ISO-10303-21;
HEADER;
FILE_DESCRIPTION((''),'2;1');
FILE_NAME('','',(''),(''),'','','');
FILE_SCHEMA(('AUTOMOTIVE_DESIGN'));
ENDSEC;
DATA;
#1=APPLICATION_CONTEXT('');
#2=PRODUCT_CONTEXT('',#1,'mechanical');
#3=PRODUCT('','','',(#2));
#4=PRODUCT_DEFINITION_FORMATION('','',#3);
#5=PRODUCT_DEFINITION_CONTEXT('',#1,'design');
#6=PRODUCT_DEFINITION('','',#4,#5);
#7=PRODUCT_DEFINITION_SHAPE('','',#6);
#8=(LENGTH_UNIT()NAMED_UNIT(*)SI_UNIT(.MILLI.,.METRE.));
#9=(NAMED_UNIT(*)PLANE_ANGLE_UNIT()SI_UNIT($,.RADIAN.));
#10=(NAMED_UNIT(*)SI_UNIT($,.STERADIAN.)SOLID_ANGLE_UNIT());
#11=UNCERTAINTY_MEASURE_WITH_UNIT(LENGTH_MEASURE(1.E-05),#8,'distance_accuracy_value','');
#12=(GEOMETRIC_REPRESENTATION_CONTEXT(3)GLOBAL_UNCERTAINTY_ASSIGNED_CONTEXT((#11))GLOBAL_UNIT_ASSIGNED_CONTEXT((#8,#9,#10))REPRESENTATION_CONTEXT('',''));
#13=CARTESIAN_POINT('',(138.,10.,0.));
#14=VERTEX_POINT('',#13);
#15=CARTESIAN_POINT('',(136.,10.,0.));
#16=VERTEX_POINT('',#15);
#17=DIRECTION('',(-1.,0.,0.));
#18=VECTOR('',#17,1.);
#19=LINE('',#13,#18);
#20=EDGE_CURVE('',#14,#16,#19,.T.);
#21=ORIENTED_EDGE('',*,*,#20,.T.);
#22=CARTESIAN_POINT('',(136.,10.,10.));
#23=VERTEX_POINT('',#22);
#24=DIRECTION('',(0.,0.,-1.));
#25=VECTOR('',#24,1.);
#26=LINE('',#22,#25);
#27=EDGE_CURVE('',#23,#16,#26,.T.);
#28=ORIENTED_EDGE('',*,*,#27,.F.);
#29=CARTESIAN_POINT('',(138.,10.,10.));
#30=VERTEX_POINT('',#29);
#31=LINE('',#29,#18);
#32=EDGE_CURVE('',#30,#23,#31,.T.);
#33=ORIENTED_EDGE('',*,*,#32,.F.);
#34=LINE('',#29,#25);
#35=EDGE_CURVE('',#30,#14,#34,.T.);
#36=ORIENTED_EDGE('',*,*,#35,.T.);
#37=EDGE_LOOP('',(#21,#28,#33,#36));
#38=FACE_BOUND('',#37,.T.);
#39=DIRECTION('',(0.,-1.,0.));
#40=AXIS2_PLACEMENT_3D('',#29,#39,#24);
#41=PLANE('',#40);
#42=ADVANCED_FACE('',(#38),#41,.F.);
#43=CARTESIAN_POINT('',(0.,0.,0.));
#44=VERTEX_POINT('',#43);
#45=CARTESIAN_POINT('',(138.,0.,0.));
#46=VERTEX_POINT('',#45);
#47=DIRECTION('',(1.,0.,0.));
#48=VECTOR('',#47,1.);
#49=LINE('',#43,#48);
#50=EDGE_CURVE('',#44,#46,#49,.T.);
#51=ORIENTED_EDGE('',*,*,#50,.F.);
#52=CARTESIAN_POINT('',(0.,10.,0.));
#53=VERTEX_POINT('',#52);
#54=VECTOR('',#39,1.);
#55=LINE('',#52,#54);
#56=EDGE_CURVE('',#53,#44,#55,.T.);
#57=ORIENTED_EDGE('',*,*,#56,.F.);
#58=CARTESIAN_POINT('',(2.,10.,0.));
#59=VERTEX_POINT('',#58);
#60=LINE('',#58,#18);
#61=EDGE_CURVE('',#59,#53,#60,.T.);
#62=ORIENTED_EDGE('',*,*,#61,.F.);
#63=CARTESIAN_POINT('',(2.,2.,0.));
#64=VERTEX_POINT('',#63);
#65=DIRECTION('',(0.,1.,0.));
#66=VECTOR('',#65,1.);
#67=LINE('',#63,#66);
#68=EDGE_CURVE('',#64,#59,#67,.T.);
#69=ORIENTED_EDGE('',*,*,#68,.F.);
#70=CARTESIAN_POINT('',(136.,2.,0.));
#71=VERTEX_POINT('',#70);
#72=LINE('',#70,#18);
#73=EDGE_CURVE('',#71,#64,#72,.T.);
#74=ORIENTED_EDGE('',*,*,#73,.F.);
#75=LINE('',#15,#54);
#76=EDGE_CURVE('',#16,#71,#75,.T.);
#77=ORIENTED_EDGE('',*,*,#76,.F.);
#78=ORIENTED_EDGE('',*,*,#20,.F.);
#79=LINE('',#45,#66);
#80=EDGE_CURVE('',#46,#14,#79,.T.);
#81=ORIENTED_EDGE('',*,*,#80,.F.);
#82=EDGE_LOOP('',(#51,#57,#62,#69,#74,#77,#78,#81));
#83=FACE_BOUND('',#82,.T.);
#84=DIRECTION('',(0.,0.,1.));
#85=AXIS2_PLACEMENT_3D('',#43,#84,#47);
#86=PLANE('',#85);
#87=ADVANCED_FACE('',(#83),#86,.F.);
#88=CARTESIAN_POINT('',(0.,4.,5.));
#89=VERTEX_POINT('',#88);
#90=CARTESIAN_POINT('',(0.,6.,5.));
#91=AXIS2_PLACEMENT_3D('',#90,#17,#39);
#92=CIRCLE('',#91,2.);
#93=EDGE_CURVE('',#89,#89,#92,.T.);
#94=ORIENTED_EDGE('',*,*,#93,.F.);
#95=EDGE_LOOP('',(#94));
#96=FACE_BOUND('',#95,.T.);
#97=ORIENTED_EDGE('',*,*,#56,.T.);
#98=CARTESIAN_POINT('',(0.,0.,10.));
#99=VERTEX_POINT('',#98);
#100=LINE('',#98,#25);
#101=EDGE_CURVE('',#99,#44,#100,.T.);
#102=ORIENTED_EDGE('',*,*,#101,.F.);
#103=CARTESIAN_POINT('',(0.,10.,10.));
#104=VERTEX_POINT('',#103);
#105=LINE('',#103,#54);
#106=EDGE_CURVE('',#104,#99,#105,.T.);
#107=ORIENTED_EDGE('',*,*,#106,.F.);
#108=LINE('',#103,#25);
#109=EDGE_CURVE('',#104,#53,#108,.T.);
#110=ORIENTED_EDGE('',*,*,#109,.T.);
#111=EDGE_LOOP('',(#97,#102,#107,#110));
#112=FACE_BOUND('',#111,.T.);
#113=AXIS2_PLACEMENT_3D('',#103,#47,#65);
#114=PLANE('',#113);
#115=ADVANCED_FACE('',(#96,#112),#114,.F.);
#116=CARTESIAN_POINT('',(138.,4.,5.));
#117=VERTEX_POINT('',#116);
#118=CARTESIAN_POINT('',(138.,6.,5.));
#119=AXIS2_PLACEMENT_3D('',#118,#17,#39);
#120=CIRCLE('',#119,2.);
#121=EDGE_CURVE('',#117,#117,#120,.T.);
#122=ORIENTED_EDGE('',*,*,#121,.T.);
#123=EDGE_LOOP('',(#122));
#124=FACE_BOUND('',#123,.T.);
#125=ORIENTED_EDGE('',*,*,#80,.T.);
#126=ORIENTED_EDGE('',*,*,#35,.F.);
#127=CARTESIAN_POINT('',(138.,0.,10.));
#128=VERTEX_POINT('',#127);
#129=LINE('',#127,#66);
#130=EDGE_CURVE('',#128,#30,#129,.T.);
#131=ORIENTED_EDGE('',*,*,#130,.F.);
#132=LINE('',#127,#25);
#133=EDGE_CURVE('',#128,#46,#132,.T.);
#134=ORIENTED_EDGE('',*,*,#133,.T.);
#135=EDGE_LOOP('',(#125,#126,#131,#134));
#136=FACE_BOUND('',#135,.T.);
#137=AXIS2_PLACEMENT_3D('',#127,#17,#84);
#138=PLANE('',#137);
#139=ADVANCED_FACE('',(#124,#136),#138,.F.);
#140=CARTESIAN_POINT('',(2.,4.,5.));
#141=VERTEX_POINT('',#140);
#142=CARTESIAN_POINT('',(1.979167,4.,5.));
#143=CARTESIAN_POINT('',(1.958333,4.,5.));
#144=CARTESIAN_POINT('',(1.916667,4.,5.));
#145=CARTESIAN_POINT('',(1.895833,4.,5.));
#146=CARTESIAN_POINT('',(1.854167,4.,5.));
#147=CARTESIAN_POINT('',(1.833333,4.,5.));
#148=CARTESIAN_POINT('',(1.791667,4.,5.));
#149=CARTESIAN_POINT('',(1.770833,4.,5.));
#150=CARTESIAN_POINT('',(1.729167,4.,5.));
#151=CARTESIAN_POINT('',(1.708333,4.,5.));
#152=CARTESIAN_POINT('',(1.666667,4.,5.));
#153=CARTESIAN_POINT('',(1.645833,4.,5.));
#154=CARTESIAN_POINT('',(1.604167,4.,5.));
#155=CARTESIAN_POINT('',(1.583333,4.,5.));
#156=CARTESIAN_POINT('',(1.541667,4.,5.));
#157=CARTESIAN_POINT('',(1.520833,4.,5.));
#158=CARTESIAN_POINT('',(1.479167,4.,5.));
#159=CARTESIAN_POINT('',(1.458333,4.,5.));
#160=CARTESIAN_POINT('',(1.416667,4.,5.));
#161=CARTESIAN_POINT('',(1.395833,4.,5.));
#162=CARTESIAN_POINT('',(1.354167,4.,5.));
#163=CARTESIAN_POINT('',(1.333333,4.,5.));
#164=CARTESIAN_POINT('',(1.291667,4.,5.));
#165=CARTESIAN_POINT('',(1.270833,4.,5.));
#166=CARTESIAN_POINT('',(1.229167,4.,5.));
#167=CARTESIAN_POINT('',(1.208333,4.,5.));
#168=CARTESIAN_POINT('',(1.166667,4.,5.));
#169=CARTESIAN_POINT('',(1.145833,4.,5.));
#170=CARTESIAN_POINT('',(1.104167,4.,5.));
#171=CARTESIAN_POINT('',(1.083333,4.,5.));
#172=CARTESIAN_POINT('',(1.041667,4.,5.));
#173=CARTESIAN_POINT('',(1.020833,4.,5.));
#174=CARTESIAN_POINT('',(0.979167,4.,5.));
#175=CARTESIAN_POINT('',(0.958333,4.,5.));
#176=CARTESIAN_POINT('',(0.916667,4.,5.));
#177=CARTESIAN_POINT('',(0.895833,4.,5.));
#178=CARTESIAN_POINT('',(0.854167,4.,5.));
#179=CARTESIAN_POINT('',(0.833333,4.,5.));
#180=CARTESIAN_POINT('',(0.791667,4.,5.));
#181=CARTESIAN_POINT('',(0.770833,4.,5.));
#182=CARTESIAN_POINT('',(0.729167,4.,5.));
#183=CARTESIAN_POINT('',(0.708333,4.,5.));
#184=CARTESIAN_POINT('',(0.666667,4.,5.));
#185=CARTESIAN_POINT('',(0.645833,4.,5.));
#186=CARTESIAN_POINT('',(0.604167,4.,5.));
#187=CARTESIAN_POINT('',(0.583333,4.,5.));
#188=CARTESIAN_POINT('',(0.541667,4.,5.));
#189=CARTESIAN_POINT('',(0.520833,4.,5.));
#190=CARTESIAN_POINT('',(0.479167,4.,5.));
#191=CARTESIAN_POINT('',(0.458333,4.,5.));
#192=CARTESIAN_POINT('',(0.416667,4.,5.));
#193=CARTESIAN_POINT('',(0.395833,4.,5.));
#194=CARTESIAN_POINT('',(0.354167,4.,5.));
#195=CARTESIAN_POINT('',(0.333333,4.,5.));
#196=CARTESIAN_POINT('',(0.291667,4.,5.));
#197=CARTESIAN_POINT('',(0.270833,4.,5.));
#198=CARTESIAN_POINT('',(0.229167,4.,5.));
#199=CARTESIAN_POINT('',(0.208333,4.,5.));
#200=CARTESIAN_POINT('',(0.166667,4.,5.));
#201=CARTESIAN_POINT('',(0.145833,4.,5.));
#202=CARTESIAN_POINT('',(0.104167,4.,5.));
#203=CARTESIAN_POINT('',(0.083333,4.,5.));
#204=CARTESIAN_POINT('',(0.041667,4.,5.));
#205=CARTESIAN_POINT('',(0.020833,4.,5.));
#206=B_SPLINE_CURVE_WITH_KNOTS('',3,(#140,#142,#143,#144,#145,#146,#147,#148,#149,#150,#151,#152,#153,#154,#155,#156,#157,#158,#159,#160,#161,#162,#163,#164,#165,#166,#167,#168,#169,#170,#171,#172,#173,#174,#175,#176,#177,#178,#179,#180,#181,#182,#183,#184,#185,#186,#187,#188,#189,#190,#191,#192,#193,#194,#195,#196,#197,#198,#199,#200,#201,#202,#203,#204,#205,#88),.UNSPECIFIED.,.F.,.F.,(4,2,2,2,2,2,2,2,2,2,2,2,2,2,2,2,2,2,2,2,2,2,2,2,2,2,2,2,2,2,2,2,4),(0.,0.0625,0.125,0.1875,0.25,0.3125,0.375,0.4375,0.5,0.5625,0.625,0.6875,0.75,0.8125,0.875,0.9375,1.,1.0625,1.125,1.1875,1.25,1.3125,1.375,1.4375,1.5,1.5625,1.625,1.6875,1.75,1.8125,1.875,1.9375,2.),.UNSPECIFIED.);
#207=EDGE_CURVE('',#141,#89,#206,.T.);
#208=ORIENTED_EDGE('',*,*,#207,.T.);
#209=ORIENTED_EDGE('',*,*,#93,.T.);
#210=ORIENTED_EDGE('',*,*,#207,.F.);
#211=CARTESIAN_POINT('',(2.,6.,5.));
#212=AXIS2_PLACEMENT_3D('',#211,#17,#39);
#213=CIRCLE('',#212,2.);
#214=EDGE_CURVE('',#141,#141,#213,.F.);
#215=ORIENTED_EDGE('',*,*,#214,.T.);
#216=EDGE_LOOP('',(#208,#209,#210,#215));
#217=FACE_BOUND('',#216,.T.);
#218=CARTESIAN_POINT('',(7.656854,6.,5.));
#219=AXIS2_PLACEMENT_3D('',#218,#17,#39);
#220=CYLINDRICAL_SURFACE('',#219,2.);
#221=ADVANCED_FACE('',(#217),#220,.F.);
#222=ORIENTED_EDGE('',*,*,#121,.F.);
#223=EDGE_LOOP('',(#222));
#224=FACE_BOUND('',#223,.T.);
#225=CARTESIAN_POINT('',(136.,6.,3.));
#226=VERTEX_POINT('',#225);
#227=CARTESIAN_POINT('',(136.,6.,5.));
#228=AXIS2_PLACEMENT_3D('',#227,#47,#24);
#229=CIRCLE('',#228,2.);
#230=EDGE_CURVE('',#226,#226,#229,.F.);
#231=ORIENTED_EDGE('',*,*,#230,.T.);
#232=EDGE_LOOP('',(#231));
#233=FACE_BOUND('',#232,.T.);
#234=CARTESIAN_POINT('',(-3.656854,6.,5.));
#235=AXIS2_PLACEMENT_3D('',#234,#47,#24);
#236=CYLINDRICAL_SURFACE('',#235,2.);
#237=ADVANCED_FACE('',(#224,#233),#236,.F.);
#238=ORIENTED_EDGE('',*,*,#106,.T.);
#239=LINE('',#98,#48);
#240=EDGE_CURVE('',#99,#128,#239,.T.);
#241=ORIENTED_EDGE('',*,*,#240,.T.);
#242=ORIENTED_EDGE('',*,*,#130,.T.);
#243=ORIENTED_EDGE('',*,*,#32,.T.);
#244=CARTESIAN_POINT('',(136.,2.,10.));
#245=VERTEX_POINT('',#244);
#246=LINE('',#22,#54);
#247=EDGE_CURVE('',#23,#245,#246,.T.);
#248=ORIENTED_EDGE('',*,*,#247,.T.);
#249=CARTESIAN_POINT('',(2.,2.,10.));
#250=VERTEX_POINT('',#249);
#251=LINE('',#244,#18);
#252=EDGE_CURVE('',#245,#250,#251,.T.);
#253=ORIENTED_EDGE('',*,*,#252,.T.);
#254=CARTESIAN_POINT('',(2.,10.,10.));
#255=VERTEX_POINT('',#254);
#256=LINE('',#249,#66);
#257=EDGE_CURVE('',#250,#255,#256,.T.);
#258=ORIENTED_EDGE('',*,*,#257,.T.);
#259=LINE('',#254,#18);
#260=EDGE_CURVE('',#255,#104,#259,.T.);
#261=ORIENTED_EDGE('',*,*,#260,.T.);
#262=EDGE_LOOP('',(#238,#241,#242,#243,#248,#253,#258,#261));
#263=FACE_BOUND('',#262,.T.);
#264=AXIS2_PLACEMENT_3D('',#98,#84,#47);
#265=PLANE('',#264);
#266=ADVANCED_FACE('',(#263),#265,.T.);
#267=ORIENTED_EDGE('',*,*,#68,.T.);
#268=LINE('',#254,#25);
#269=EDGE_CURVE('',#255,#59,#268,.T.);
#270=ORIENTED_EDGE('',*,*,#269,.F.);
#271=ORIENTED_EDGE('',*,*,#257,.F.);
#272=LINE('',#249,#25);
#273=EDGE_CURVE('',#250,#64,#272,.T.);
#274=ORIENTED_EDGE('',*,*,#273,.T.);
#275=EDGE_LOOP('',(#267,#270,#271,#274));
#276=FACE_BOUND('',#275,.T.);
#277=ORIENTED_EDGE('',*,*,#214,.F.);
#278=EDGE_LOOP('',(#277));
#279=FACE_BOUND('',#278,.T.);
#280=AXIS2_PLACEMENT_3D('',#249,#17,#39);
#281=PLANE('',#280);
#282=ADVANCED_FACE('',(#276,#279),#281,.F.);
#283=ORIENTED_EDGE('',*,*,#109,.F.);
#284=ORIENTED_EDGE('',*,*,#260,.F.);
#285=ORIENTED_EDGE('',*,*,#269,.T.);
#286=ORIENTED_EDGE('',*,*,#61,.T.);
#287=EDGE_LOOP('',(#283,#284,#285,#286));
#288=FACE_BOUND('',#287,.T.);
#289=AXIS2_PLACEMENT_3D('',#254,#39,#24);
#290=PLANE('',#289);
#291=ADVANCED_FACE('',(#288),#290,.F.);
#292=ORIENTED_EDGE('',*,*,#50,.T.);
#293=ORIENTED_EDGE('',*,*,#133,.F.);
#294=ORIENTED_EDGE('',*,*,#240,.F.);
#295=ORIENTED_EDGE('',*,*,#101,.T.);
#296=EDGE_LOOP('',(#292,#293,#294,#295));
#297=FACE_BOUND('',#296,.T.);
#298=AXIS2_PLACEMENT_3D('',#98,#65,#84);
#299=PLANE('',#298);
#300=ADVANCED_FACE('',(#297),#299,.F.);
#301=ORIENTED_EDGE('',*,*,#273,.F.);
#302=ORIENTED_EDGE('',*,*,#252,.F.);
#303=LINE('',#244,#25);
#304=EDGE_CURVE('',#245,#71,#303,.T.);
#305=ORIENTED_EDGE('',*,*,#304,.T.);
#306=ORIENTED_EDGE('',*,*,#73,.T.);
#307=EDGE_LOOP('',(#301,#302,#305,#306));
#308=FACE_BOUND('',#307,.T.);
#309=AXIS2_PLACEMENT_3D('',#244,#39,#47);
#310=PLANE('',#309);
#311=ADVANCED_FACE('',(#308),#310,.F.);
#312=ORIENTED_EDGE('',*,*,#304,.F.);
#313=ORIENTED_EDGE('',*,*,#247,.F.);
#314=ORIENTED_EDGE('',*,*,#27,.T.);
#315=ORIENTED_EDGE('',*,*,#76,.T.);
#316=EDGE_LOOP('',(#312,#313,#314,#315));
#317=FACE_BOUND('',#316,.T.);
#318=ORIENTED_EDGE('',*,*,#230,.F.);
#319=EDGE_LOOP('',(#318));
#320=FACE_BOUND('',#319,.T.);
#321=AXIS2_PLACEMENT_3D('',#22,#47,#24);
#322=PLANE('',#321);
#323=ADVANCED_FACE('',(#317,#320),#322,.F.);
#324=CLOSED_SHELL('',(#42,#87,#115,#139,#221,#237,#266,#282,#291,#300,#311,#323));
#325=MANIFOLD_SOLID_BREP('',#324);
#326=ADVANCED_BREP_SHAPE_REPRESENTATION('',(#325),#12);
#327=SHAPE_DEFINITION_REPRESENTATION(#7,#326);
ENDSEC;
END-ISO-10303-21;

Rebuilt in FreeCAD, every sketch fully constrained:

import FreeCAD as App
import Part
import Sketcher
from FreeCAD import Vector

doc = App.newDocument("Part")
body = doc.addObject("PartDesign::Body", "Body")

sketch1 = body.newObject("Sketcher::SketchObject", "Sketch")
sketch1.AttachmentSupport = (doc.getObject("XY_Plane"), [""])
sketch1.MapMode = "FlatFace"
sketch1.addGeometry(Part.LineSegment(Vector(0, 0, 0), Vector(138, 0, 0)), False)
sketch1.addGeometry(Part.LineSegment(Vector(138, 0, 0), Vector(138, 10, 0)), False)
sketch1.addGeometry(Part.LineSegment(Vector(138, 10, 0), Vector(136, 10, 0)), False)
sketch1.addGeometry(Part.LineSegment(Vector(136, 10, 0), Vector(136, 2, 0)), False)
sketch1.addGeometry(Part.LineSegment(Vector(136, 2, 0), Vector(2, 2, 0)), False)
sketch1.addGeometry(Part.LineSegment(Vector(2, 2, 0), Vector(2, 10, 0)), False)
sketch1.addGeometry(Part.LineSegment(Vector(2, 10, 0), Vector(0, 10, 0)), False)
sketch1.addGeometry(Part.LineSegment(Vector(0, 10, 0), Vector(0, 0, 0)), False)
sketch1.addConstraint(Sketcher.Constraint("Coincident", 0, 2, 1, 1))
sketch1.addConstraint(Sketcher.Constraint("Coincident", 1, 2, 2, 1))
sketch1.addConstraint(Sketcher.Constraint("Coincident", 2, 2, 3, 1))
sketch1.addConstraint(Sketcher.Constraint("Coincident", 3, 2, 4, 1))
sketch1.addConstraint(Sketcher.Constraint("Coincident", 4, 2, 5, 1))
sketch1.addConstraint(Sketcher.Constraint("Coincident", 5, 2, 6, 1))
sketch1.addConstraint(Sketcher.Constraint("Coincident", 6, 2, 7, 1))
sketch1.addConstraint(Sketcher.Constraint("Coincident", 7, 2, 0, 1))
sketch1.addConstraint(Sketcher.Constraint("Horizontal", 0))
sketch1.addConstraint(Sketcher.Constraint("Vertical", 1))
sketch1.addConstraint(Sketcher.Constraint("Horizontal", 2))
sketch1.addConstraint(Sketcher.Constraint("Vertical", 3))
sketch1.addConstraint(Sketcher.Constraint("Horizontal", 4))
sketch1.addConstraint(Sketcher.Constraint("Vertical", 5))
sketch1.addConstraint(Sketcher.Constraint("Horizontal", 6))
sketch1.addConstraint(Sketcher.Constraint("Vertical", 7))
sketch1.addConstraint(Sketcher.Constraint("Coincident", 7, 2, -1, 1))
sketch1.addConstraint(Sketcher.Constraint("Horizontal", 2, 2, 5, 2))
sketch1.addConstraint(Sketcher.Constraint("Equal", 2, 6))
sketch1.addConstraint(Sketcher.Constraint("DistanceX", 0, 1, 0, 2, 138.0))
sketch1.addConstraint(Sketcher.Constraint("DistanceX", 2, 2, 2, 1, 2.0))
sketch1.addConstraint(Sketcher.Constraint("DistanceY", 1, 1, 1, 2, 10.0))
sketch1.addConstraint(Sketcher.Constraint("DistanceY", 3, 2, 3, 1, 8.0))
pad1 = body.newObject("PartDesign::Pad", "Pad")
pad1.Profile = sketch1
pad1.Length = 10

sketch2 = body.newObject("Sketcher::SketchObject", "Sketch001")
sketch2.AttachmentSupport = (doc.getObject("YZ_Plane"), [""])
sketch2.MapMode = "FlatFace"
sketch2.addGeometry(Part.Circle(Vector(6, 5, 0), Vector(0, 0, 1), 2), False)
sketch2.addConstraint(Sketcher.Constraint("Diameter", 0, 4.0))
sketch2.addConstraint(Sketcher.Constraint("DistanceX", -1, 1, 0, 3, 6.0))
sketch2.addConstraint(Sketcher.Constraint("DistanceY", -1, 1, 0, 3, 5.0))
pocket1 = body.newObject("PartDesign::Pocket", "Pocket")
pocket1.Profile = sketch2
pocket1.Length = 136
pocket1.Reversed = True
doc.recompute()

datumplane = body.newObject("PartDesign::Plane", "DatumPlane")
datumplane.AttachmentSupport = (doc.getObject("YZ_Plane"), [""])
datumplane.MapMode = "FlatFace"
datumplane.AttachmentOffset = App.Placement(Vector(0, 0, 69), App.Rotation())
mirrored = body.newObject("PartDesign::Mirrored", "Mirrored")
mirrored.Originals = [pocket1]
mirrored.MirrorPlane = (datumplane, [""])
body.Tip = mirrored

doc.recompute()
